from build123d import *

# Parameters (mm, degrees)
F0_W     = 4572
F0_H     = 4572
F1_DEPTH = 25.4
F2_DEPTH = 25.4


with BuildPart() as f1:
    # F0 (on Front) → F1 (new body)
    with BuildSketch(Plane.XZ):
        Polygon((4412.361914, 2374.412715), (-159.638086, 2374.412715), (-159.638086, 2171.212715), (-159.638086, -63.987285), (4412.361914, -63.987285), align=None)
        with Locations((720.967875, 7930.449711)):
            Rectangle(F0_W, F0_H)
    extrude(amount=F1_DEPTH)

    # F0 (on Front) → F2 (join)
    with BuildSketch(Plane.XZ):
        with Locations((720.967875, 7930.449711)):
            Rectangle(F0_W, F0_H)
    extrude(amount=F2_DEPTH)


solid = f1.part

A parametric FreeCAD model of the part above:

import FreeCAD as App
import Part
import Sketcher
from FreeCAD import Vector
Q = App.Units.Quantity


def add_polygon(sketch, points):
    """Adds a closed chain of lines whose ends are joined by coincident constraints."""
    first, n = sketch.GeometryCount, len(points)
    for a, b in zip(points, points[1:] + points[:1]):
        sketch.addGeometry(Part.LineSegment(App.Vector(*a, 0), App.Vector(*b, 0)), False)
    for i in range(n):
        sketch.addConstraint(Sketcher.Constraint("Coincident", first + i, 2, first + (i + 1) % n, 1))

doc = App.newDocument("Part")
body = doc.addObject("PartDesign::Body", "Body")
body.AllowCompound = True

sketch1 = body.newObject("Sketcher::SketchObject", "Sketch")
sketch1.AttachmentSupport = (doc.getObject("XZ_Plane"), [""])
sketch1.MapMode = "FlatFace"
add_polygon(sketch1, [(4412, 2374), (-160, 2374), (-160, -64), (4412, -64)])
add_polygon(sketch1, [(-1565, 10216), (-1565, 5644), (3007, 5644), (3007, 10216)])
sketch1.addConstraint([
    Sketcher.Constraint("Horizontal", 0),
    Sketcher.Constraint("Vertical", 1),
    Sketcher.Constraint("Horizontal", 2),
    Sketcher.Constraint("Vertical", 3),
    Sketcher.Constraint("Vertical", 4),
    Sketcher.Constraint("Horizontal", 5),
    Sketcher.Constraint("Vertical", 6),
    Sketcher.Constraint("Horizontal", 7),
    Sketcher.Constraint("Equal", 2, 5),
    Sketcher.Constraint("Equal", 7, 4),
    Sketcher.Constraint("DistanceX", 0, 2, 0, 1, Q("180 in")),
    Sketcher.Constraint("DistanceY", 1, 2, 1, 1, Q("96 in")),
    Sketcher.Constraint("DistanceY", -1, 1, 4, 2, 5644.449711),
    Sketcher.Constraint("DistanceX", 4, 2, 0, 2, 1405.394039),
    Sketcher.Constraint("DistanceX", 0, 2, -1, 1, 159.638086),
    Sketcher.Constraint("DistanceY", -1, 1, 0, 2, 2374.412715),
])
pad1 = body.newObject("PartDesign::Pad", "Pad")
pad1.Profile = sketch1
pad1.Length = Q("1 in")

sketch2 = body.newObject("Sketcher::SketchObject", "Sketch001")
sketch2.AttachmentSupport = (doc.getObject("XZ_Plane"), [""])
sketch2.MapMode = "FlatFace"
add_polygon(sketch2, [(-1565, 10216), (-1565, 5644), (3007, 5644), (3007, 10216)])
sketch2.addConstraint([
    Sketcher.Constraint("Vertical", 0),
    Sketcher.Constraint("Horizontal", 1),
    Sketcher.Constraint("Vertical", 2),
    Sketcher.Constraint("Horizontal", 3),
    Sketcher.Constraint("Equal", 3, 0),
    Sketcher.Constraint("DistanceX", 1, 1, 1, 2, Q("180 in")),
    Sketcher.Constraint("DistanceY", -1, 1, 0, 2, 5644.449711),
    Sketcher.Constraint("DistanceX", 0, 2, -1, 1, 1565.032125),
])
pad2 = body.newObject("PartDesign::Pad", "Pad001")
pad2.Profile = sketch2
pad2.Length = Q("1 in")

doc.recompute()
